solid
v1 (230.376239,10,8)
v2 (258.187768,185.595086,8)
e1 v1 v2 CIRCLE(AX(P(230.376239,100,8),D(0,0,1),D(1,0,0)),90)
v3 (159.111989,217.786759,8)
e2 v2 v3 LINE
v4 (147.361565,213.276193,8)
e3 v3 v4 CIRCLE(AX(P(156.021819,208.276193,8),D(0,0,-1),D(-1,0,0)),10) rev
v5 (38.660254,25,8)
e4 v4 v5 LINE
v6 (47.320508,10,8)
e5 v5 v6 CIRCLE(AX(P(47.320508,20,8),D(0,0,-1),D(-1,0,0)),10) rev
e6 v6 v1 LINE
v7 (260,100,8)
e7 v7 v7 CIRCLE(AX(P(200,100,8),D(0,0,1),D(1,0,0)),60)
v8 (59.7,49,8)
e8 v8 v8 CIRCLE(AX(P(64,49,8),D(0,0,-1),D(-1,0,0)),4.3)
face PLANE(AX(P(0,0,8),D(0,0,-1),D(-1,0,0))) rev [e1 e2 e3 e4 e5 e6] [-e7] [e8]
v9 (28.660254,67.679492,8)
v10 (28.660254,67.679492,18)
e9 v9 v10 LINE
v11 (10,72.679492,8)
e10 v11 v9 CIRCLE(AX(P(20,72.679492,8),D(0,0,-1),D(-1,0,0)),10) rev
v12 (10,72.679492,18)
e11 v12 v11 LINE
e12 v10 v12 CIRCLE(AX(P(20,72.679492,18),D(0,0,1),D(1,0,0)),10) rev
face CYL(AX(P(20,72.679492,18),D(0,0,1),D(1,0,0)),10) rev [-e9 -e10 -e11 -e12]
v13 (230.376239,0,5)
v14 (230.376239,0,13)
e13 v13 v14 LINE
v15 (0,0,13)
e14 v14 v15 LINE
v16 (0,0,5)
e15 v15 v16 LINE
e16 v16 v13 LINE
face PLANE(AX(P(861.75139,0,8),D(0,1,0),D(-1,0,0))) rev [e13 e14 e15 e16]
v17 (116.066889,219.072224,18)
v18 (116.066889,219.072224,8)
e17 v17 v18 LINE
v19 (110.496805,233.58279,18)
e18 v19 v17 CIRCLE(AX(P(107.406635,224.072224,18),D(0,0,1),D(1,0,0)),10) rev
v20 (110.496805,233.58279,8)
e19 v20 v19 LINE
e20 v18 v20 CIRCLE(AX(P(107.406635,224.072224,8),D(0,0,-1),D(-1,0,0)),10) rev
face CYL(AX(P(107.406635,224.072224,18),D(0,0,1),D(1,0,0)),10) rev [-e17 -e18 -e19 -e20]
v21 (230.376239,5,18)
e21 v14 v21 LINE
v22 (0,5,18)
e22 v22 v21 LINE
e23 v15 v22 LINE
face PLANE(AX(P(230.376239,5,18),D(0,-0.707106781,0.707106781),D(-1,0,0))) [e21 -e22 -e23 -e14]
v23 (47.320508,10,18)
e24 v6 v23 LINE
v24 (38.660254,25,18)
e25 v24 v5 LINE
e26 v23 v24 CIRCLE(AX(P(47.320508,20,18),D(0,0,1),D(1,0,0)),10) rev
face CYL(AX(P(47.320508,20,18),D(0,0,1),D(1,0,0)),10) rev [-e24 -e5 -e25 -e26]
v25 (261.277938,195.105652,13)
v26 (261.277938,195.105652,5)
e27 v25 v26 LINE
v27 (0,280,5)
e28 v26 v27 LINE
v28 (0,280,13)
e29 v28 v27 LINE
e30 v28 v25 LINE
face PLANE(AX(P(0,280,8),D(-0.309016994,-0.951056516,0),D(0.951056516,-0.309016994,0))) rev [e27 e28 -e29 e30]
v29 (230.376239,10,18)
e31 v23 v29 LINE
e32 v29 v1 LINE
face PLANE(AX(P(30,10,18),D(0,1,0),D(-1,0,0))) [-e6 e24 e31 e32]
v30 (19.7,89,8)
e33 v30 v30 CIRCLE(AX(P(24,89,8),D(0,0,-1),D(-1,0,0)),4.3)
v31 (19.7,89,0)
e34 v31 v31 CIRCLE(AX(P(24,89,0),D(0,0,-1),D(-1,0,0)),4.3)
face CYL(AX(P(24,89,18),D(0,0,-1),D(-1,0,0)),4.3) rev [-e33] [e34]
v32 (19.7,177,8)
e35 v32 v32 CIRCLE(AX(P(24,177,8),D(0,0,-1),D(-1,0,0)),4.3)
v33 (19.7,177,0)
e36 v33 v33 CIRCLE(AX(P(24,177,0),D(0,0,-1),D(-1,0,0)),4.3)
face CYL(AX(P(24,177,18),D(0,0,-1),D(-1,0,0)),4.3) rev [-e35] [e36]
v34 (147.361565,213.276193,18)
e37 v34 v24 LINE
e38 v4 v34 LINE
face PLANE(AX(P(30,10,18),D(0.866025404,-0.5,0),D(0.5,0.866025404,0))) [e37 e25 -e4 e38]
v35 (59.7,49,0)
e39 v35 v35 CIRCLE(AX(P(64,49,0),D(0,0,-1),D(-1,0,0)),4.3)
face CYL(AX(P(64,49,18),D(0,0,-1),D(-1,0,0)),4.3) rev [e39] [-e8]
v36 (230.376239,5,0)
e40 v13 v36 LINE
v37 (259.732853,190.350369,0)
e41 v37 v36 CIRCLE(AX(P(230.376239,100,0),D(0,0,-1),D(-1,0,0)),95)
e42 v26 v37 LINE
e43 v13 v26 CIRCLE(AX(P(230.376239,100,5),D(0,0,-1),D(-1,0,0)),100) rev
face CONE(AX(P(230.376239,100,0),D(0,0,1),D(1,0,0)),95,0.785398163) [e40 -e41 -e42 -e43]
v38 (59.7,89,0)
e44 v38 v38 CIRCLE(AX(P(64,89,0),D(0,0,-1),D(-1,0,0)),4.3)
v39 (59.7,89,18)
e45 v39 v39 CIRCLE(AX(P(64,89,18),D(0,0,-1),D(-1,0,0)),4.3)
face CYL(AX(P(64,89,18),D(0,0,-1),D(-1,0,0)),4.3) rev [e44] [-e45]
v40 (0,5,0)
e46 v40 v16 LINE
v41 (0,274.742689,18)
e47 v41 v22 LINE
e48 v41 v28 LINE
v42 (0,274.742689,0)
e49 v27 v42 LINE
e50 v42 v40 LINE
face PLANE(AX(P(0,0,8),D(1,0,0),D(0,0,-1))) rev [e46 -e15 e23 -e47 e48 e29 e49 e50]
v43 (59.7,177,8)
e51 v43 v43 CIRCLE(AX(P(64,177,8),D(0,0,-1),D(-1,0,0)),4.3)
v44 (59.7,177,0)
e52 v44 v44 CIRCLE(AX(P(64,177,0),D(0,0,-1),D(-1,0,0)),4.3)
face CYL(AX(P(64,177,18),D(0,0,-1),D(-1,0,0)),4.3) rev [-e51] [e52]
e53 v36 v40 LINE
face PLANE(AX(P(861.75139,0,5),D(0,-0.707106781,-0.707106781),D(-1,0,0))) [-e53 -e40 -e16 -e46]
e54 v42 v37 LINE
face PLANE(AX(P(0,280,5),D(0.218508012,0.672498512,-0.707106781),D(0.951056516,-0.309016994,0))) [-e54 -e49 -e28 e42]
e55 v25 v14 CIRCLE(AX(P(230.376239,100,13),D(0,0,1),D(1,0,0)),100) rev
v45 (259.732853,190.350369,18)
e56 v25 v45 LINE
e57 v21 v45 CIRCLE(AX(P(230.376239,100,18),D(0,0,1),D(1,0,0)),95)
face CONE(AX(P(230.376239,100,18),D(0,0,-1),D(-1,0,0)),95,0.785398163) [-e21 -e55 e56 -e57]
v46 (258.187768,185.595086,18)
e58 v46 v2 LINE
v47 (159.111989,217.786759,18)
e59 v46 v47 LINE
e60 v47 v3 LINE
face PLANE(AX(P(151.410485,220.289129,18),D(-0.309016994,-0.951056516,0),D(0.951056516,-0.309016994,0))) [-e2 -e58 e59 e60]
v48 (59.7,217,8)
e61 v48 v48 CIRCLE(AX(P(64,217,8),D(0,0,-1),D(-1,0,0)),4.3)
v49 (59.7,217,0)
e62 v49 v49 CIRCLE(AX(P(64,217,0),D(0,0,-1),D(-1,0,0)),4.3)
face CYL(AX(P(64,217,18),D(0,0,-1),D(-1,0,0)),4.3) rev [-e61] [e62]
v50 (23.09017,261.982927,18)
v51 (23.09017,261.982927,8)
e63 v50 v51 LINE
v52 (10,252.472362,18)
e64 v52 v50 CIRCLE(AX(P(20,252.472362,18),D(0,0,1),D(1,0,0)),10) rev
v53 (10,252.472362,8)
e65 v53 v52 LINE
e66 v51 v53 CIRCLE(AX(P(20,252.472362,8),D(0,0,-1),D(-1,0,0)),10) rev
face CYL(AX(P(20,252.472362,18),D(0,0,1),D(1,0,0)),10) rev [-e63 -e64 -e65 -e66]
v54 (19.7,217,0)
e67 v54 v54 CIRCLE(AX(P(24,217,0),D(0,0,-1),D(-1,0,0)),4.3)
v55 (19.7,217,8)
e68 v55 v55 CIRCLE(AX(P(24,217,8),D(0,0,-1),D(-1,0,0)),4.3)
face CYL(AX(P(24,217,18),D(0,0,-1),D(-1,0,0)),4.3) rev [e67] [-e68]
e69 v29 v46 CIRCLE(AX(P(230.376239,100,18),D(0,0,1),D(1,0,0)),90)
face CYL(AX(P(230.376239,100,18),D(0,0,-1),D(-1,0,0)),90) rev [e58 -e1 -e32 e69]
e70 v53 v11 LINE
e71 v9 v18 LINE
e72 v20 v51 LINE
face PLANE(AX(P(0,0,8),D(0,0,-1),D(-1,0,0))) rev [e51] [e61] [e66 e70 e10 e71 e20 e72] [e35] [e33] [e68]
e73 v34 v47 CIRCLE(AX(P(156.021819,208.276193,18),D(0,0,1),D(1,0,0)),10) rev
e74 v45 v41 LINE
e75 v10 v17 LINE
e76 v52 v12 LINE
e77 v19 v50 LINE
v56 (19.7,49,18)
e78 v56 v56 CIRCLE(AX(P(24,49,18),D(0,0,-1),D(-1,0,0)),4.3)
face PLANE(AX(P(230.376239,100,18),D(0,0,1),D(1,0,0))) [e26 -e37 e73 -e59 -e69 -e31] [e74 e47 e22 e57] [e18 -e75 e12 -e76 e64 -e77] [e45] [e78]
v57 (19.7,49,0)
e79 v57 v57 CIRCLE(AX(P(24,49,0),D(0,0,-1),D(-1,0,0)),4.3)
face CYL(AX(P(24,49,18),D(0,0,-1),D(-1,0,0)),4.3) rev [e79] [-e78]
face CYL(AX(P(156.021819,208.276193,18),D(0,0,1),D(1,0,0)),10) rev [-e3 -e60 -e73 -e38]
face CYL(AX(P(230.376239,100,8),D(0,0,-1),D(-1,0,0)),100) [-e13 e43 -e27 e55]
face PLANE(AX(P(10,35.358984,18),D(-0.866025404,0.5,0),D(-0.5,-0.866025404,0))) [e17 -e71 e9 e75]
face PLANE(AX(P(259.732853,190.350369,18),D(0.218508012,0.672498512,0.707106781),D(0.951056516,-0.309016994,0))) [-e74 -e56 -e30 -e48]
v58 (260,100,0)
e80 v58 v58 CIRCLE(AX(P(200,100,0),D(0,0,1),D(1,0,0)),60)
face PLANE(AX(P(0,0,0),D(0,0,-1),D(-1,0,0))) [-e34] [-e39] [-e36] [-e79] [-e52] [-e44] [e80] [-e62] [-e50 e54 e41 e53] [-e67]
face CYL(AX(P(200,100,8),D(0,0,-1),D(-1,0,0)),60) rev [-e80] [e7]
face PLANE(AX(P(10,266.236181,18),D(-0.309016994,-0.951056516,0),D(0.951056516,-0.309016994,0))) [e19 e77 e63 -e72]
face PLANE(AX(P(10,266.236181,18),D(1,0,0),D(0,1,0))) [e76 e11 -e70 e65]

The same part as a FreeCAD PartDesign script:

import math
import FreeCAD as App
import Part
import Sketcher

V = App.Vector
Q = App.Units.Quantity


def edges_at(feature, points):
    """Names of the edges that pass closest to the given points."""
    edges = feature.Shape.Edges
    near = lambda p: min(range(len(edges)), key=lambda i: edges[i].distToShape(Part.Vertex(*p))[0])
    return sorted({f"Edge{near(p) + 1}" for p in points})


def add_polygon(sketch, points):
    """Adds a closed chain of lines whose ends are joined by coincident constraints."""
    first, n = sketch.GeometryCount, len(points)
    for a, b in zip(points, points[1:] + points[:1]):
        sketch.addGeometry(Part.LineSegment(App.Vector(*a, 0), App.Vector(*b, 0)), False)
    for i in range(n):
        sketch.addConstraint(Sketcher.Constraint("Coincident", first + i, 2, first + (i + 1) % n, 1))

doc = App.newDocument("Part")
body = doc.addObject("PartDesign::Body", "Body")

# Sketch on XY plane
sketch1 = doc.addObject("Sketcher::SketchObject", "Sketch")
body.addObject(sketch1)
sketch1.AttachmentSupport = (doc.XY_Plane, [""])
sketch1.MapMode = "FlatFace"
add_polygon(sketch1, [(0, 280), (0, 0), (862, 0)])  # lines 0-2
sketch1.addGeometry(Part.Circle(V(200, 100, 0), V(0, 0, 1), 60), False)  # 3
sketch1.addConstraint([
    Sketcher.Constraint("Vertical", 0),
    Sketcher.Constraint("Horizontal", 1),
    Sketcher.Constraint("Coincident", 0, 2, -1, 1),
    Sketcher.Constraint("Diameter", 3, Q("120 mm")),
    Sketcher.Constraint("DistanceY", 0, 2, 0, 1, Q("280 mm")),
    Sketcher.Constraint("Angle", 2, Q("162 deg")),
    Sketcher.Constraint("DistanceX", -1, 1, 3, 3, Q("200 mm")),
    Sketcher.Constraint("DistanceY", -1, 1, 3, 3, Q("100 mm")),
])
pad1 = doc.addObject("PartDesign::Pad", "Pad")
body.addObject(pad1)
pad1.Profile = sketch1
pad1.Length = 8
doc.recompute()

fillet = doc.addObject("PartDesign::Fillet", "Fillet")
body.addObject(fillet)
fillet.Base = (pad1, edges_at(pad1, [(861.751, 0, 4)]))
fillet.Radius = 100

# Sketch on XY plane
sketch2 = doc.addObject("Sketcher::SketchObject", "Sketch001")
body.addObject(sketch2)
sketch2.AttachmentSupport = (doc.XY_Plane, [""])
sketch2.MapMode = "FlatFace"
sketch2.AttachmentOffset = App.Placement(V(0, 0, 18), App.Rotation())
sketch2.addGeometry(Part.LineSegment(V(0, 0, 0), V(230, 0, 0)), False)  # 0
sketch2.addGeometry(Part.ArcOfCircle(Part.Circle(V(230, 100, 0), V(0, 0, 1), 100), math.radians(-90), math.radians(72)), False)  # 1
sketch2.addGeometry(Part.LineSegment(V(261, 195, 0), V(0, 280, 0)), False)  # 2
sketch2.addGeometry(Part.LineSegment(V(0, 280, 0), V(0, 0, 0)), False)  # 3
sketch2.addGeometry(Part.LineSegment(V(230, 10, 0), V(30, 10, 0)), False)  # 4
sketch2.addGeometry(Part.LineSegment(V(30, 10, 0), V(151, 220, 0)), False)  # 5
sketch2.addGeometry(Part.LineSegment(V(151, 220, 0), V(258, 186, 0)), False)  # 6
sketch2.addGeometry(Part.ArcOfCircle(Part.Circle(V(230, 100, 0), V(0, 0, 1), 90), math.radians(-90), math.radians(72)), False)  # 7
add_polygon(sketch2, [(10, 35), (10, 266), (122, 230)])  # lines 8-10
sketch2.addConstraint([
    Sketcher.Constraint("Tangent", 0, 2, 1, 1),
    Sketcher.Constraint("Tangent", 1, 2, 2, 1),
    Sketcher.Constraint("Coincident", 2, 2, 3, 1),
    Sketcher.Constraint("Coincident", 3, 2, 0, 1),
    Sketcher.Constraint("Coincident", 4, 2, 5, 1),
    Sketcher.Constraint("Coincident", 5, 2, 6, 1),
    Sketcher.Constraint("Tangent", 6, 2, 7, 2),
    Sketcher.Constraint("Tangent", 7, 1, 4, 1),
    Sketcher.Constraint("Horizontal", 0),
    Sketcher.Constraint("Vertical", 3),
    Sketcher.Constraint("Horizontal", 4),
    Sketcher.Constraint("Vertical", 8),
    Sketcher.Constraint("Coincident", 3, 2, -1, 1),
    Sketcher.Constraint("Coincident", 7, 3, 1, 3),
    Sketcher.Constraint("Parallel", 2, 6),
    Sketcher.Constraint("Parallel", 6, 9),
    Sketcher.Constraint("Parallel", 5, 10),
    Sketcher.Constraint("Radius", 1, Q("100 mm")),
    Sketcher.Constraint("Radius", 7, Q("90 mm")),
    Sketcher.Constraint("DistanceY", 3, 2, 3, 1, Q("280 mm")),
    Sketcher.Constraint("Angle", 2, Q("162 deg")),
    Sketcher.Constraint("Angle", 5, Q("60 deg")),
    Sketcher.Constraint("DistanceX", -1, 1, 4, 2, Q("30 mm")),
    Sketcher.Constraint("DistanceX", -1, 1, 8, 2, Q("10 mm")),
    Sketcher.Constraint("Distance", 10, Q("224.482749 mm")),
    Sketcher.Constraint("DistanceY", -1, 1, 8, 2, Q("266.236181 mm")),
])
pad2 = doc.addObject("PartDesign::Pad", "Pad001")
body.addObject(pad2)
pad2.Profile = sketch2
pad2.Length = 10
pad2.Reversed = True
doc.recompute()

fillet2 = doc.addObject("PartDesign::Fillet", "Fillet001")
body.addObject(fillet2)
fillet2.Base = (pad2, edges_at(pad2, [
    (10, 266.236, 13),
    (10, 35.359, 13),
    (122.241, 229.767, 13),
    (30, 10, 13),
    (151.41, 220.289, 13),
]))
fillet2.Radius = 10
doc.recompute()

chamfer = doc.addObject("PartDesign::Chamfer", "Chamfer")
body.addObject(chamfer)
chamfer.Base = (fillet2, edges_at(fillet2, [
    (130.639, 237.553, 0),
    (329.145, 84.357, 0),
    (115.188, 0, 18),
    (329.145, 84.357, 18),
    (130.639, 237.553, 18),
    (115.188, 0, 0),
]))
chamfer.Size = 5

# Sketch on XY plane
sketch3 = doc.addObject("Sketcher::SketchObject", "Sketch002")
body.addObject(sketch3)
sketch3.AttachmentSupport = (doc.XY_Plane, [""])
sketch3.MapMode = "FlatFace"
sketch3.addGeometry([
    Part.Circle(V(64, 217, 0), V(0, 0, 1), 4.3),  # 0
    Part.Circle(V(64, 177, 0), V(0, 0, 1), 4.3),  # 1
    Part.Circle(V(24, 217, 0), V(0, 0, 1), 4.3),  # 2
    Part.Circle(V(24, 177, 0), V(0, 0, 1), 4.3),  # 3
    Part.Circle(V(64, 89, 0), V(0, 0, 1), 4.3),  # 4
    Part.Circle(V(24, 89, 0), V(0, 0, 1), 4.3),  # 5
    Part.Circle(V(64, 49, 0), V(0, 0, 1), 4.3),  # 6
    Part.Circle(V(24, 49, 0), V(0, 0, 1), 4.3),  # 7
], False)
sketch3.addConstraint([
    Sketcher.Constraint("Equal", 0, 1),
    Sketcher.Constraint("Equal", 1, 2),
    Sketcher.Constraint("Equal", 2, 3),
    Sketcher.Constraint("Equal", 3, 4),
    Sketcher.Constraint("Equal", 4, 5),
    Sketcher.Constraint("Equal", 5, 6),
    Sketcher.Constraint("Equal", 6, 7),
    Sketcher.Constraint("Horizontal", 0, 3, 2, 3),
    Sketcher.Constraint("Horizontal", 1, 3, 3, 3),
    Sketcher.Constraint("Horizontal", 4, 3, 5, 3),
    Sketcher.Constraint("Horizontal", 6, 3, 7, 3),
    Sketcher.Constraint("Vertical", 0, 3, 1, 3),
    Sketcher.Constraint("Vertical", 2, 3, 3, 3),
    Sketcher.Constraint("Vertical", 1, 3, 4, 3),
    Sketcher.Constraint("Vertical", 3, 3, 5, 3),
    Sketcher.Constraint("Vertical", 4, 3, 6, 3),
    Sketcher.Constraint("Vertical", 5, 3, 7, 3),
    Sketcher.Constraint("Diameter", 0, Q("8.6 mm")),
    Sketcher.Constraint("DistanceX", -1, 1, 0, 3, Q("64 mm")),
    Sketcher.Constraint("DistanceY", -1, 1, 0, 3, Q("217 mm")),
    Sketcher.Constraint("DistanceY", -1, 1, 1, 3, Q("177 mm")),
    Sketcher.Constraint("DistanceX", -1, 1, 2, 3, Q("24 mm")),
    Sketcher.Constraint("DistanceY", -1, 1, 4, 3, Q("89 mm")),
    Sketcher.Constraint("DistanceY", -1, 1, 6, 3, Q("49 mm")),
])
pocket1 = doc.addObject("PartDesign::Pocket", "Pocket")
body.addObject(pocket1)
pocket1.Profile = sketch3
pocket1.Type = "ThroughAll"
pocket1.Midplane = True

doc.recompute()
